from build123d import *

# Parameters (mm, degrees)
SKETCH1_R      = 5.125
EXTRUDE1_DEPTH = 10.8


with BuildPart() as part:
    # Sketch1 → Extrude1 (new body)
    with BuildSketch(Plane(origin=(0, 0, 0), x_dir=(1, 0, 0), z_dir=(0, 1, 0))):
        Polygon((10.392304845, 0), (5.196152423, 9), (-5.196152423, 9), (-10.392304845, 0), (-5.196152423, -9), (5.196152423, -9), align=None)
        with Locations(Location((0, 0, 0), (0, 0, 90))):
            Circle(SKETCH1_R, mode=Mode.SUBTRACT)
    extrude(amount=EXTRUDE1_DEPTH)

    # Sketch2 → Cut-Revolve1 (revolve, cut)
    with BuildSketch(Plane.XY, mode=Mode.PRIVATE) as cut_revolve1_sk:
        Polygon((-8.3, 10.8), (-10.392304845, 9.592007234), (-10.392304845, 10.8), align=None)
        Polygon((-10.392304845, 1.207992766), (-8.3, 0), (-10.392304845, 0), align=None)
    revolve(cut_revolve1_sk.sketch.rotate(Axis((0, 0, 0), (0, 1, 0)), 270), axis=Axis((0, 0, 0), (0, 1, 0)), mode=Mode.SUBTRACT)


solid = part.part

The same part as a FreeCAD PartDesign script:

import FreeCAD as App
import Part
import Sketcher
from FreeCAD import Vector
Q = App.Units.Quantity

doc = App.newDocument("Part")
params = doc.addObject("Spreadsheet::Sheet", "Params")
for row, (alias, value) in enumerate([
    ("sketch1_diameter", "10.25 mm"),
    ("pad1_length", "10.8 mm"),
    ("groove_angle", "360 deg"),
], start=1):
    params.set(f"A{row}", alias)
    params.set(f"B{row}", "=" + value)
    params.setAlias(f"B{row}", alias)

body = doc.addObject("PartDesign::Body", "Body")

sketch1 = body.newObject("Sketcher::SketchObject", "Sketch")
sketch1.AttachmentSupport = (doc.getObject("XZ_Plane"), [""])
sketch1.MapMode = "FlatFace"
sketch1.addGeometry([
    Part.LineSegment(Vector(10, 0, 0), Vector(5, -9, 0)),
    Part.LineSegment(Vector(5, -9, 0), Vector(-5, -9, 0)),
    Part.LineSegment(Vector(-5, -9, 0), Vector(-10, 0, 0)),
    Part.LineSegment(Vector(-10, 0, 0), Vector(-5, 9, 0)),
    Part.LineSegment(Vector(-5, 9, 0), Vector(5, 9, 0)),
    Part.LineSegment(Vector(5, 9, 0), Vector(10, 0, 0)),
    Part.Circle(Vector(0, 0, 0), Vector(0, 0, 1), 5),
], False)
sketch1.addConstraint([
    Sketcher.Constraint("Coincident", 0, 2, 1, 1),
    Sketcher.Constraint("Coincident", 1, 2, 2, 1),
    Sketcher.Constraint("Coincident", 2, 2, 3, 1),
    Sketcher.Constraint("Coincident", 3, 2, 4, 1),
    Sketcher.Constraint("Coincident", 4, 2, 5, 1),
    Sketcher.Constraint("Coincident", 5, 2, 0, 1),
    Sketcher.Constraint("Horizontal", 1),
    Sketcher.Constraint("Horizontal", 4),
    Sketcher.Constraint("Coincident", 6, 3, -1, 1),
    Sketcher.Constraint("Symmetric", 0, 2, 3, 2, -1, 1),
    Sketcher.Constraint("Symmetric", 2, 2, 5, 2, -1, 1),
    Sketcher.Constraint("PointOnObject", 2, 2, -1),
    Sketcher.Constraint("Parallel", 2, 5),
    Sketcher.Constraint("Vertical", 1, 2, 3, 2),
    Sketcher.Constraint("Diameter", 6, 10.25),
    Sketcher.Constraint("Angle", 0, Q("-120 deg")),
    Sketcher.Constraint("DistanceY", 0, 2, -1, 1, 9.0),
    Sketcher.Constraint("DistanceX", 1, 2, 1, 1, 10.392305),
])
sketch1.setExpression("Constraints[14]", "Params.sketch1_diameter")
pad1 = body.newObject("PartDesign::Pad", "Pad")
pad1.Profile = sketch1
pad1.setExpression("Length", "Params.pad1_length")
pad1.Reversed = True

sketch2 = body.newObject("Sketcher::SketchObject", "Sketch001")
sketch2.AttachmentSupport = (doc.getObject("XY_Plane"), [""])
sketch2.MapMode = "FlatFace"
sketch2.addGeometry([
    Part.LineSegment(Vector(-10.4, 9.6, 0), Vector(-8.3, 10.8, 0)),
    Part.LineSegment(Vector(-8.3, 10.8, 0), Vector(-10.4, 10.8, 0)),
    Part.LineSegment(Vector(-10.4, 10.8, 0), Vector(-10.4, 9.6, 0)),
    Part.LineSegment(Vector(-8.3, 0, 0), Vector(-10.4, 1.2, 0)),
    Part.LineSegment(Vector(-10.4, 1.2, 0), Vector(-10.4, 0, 0)),
    Part.LineSegment(Vector(-10.4, 0, 0), Vector(-8.3, 0, 0)),
], False)
sketch2.addConstraint([
    Sketcher.Constraint("Coincident", 0, 2, 1, 1),
    Sketcher.Constraint("Coincident", 1, 2, 2, 1),
    Sketcher.Constraint("Coincident", 2, 2, 0, 1),
    Sketcher.Constraint("Coincident", 3, 2, 4, 1),
    Sketcher.Constraint("Coincident", 4, 2, 5, 1),
    Sketcher.Constraint("Coincident", 5, 2, 3, 1),
    Sketcher.Constraint("Horizontal", 1),
    Sketcher.Constraint("Vertical", 2),
    Sketcher.Constraint("Vertical", 4),
    Sketcher.Constraint("Horizontal", 5),
    Sketcher.Constraint("PointOnObject", 4, 2, -1),
    Sketcher.Constraint("Vertical", 2, 2, 3, 2),
    Sketcher.Constraint("Vertical", 0, 2, 5, 2),
    Sketcher.Constraint("Equal", 2, 4),
    Sketcher.Constraint("Angle", 0, Q("30 deg")),
    Sketcher.Constraint("DistanceX", 0, 2, -1, 1, 8.3),
    Sketcher.Constraint("DistanceY", -1, 1, 0, 2, 10.8),
    Sketcher.Constraint("DistanceX", 1, 2, 1, 1, 2.092305),
])
groove = body.newObject("PartDesign::Groove", "Groove")
groove.Profile = sketch2
groove.ReferenceAxis = (sketch2, ["V_Axis"])
groove.setExpression("Angle", "Params.groove_angle")

doc.recompute()
